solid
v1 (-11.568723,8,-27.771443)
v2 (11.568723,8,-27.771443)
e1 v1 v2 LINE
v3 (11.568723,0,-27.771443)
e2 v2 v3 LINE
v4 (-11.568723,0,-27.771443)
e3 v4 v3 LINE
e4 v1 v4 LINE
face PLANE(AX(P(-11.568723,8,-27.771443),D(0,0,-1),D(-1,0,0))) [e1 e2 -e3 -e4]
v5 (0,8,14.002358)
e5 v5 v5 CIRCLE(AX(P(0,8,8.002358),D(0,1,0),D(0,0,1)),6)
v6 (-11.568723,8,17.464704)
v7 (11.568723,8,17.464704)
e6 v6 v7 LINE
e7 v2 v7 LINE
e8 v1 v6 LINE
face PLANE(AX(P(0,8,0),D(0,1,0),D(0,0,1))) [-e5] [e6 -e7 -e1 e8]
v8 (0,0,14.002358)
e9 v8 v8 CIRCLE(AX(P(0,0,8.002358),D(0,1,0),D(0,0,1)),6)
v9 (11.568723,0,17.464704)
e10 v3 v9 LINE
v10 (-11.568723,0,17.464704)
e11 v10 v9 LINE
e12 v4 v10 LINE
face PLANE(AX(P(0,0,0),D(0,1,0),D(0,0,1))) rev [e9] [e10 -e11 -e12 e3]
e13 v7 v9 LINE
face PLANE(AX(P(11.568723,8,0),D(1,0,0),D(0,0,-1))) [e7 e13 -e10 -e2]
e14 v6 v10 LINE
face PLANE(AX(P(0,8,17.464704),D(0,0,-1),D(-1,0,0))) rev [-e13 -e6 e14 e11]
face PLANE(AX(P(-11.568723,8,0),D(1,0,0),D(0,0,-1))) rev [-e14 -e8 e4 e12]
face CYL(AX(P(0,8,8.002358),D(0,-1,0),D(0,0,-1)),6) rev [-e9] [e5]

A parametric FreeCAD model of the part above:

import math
import FreeCAD as App
import Part
import Sketcher
Q = App.Units.Quantity

doc = App.newDocument("Part")
body = doc.addObject("PartDesign::Body", "Body")

sketch1 = body.newObject("Sketcher::SketchObject", "Sketch")
sketch1.AttachmentSupport = (doc.getObject("XZ_Plane"), [""])
sketch1.MapMode = "FlatFace"
sketch1.addGeometry([
    Part.LineSegment(App.Vector(11.568723, 17.464704, 0), App.Vector(11.568723, -17.464704, 0)),
    Part.LineSegment(App.Vector(11.568723, -17.464704, 0), App.Vector(-11.568723, -17.464704, 0)),
    Part.LineSegment(App.Vector(-11.568723, -17.464704, 0), App.Vector(-11.568723, 17.464704, 0)),
    Part.LineSegment(App.Vector(-11.568723, 17.464704, 0), App.Vector(11.568723, 17.464704, 0)),
    Part.ArcOfCircle(Part.Circle(App.Vector(0, 8.002358, 0), App.Vector(0, 0, 1), 6), math.radians(-90), math.radians(0)),
    Part.ArcOfCircle(Part.Circle(App.Vector(0, 8.002358, 0), App.Vector(0, 0, 1), 6), math.radians(0), math.radians(90)),
    Part.ArcOfCircle(Part.Circle(App.Vector(0, 8.002358, 0), App.Vector(0, 0, 1), 6), math.radians(90), math.radians(270)),
], False)
sketch1.addConstraint([
    Sketcher.Constraint("Coincident", 0, 2, 1, 1),
    Sketcher.Constraint("Coincident", 1, 2, 2, 1),
    Sketcher.Constraint("Coincident", 2, 2, 3, 1),
    Sketcher.Constraint("Coincident", 3, 2, 0, 1),
    Sketcher.Constraint("Tangent", 4, 2, 5, 1),
    Sketcher.Constraint("Tangent", 5, 2, 6, 1),
    Sketcher.Constraint("Tangent", 6, 2, 4, 1),
    Sketcher.Constraint("Vertical", 0),
    Sketcher.Constraint("Horizontal", 1),
    Sketcher.Constraint("Vertical", 2),
    Sketcher.Constraint("Horizontal", 3),
    Sketcher.Constraint("Symmetric", 0, 2, 2, 2, -1, 1),
    Sketcher.Constraint("PointOnObject", 4, 3, -2),
    Sketcher.Constraint("PointOnObject", 5, 2, -2),
    Sketcher.Constraint("PointOnObject", 6, 2, -2),
    Sketcher.Constraint("Horizontal", 6, 3, 4, 2),
    Sketcher.Constraint("Radius", 4, Q("6 mm")),
    Sketcher.Constraint("DistanceY", 0, 2, 0, 1, Q("34.929409 mm")),
    Sketcher.Constraint("DistanceX", 1, 2, 1, 1, Q("23.137446 mm")),
    Sketcher.Constraint("DistanceY", -1, 1, 4, 3, Q("8.002358 mm")),
])
pad1 = body.newObject("PartDesign::Pad", "Pad")
pad1.Profile = sketch1
pad1.Length = 8
pad1.Reversed = True

sketch2 = body.newObject("Sketcher::SketchObject", "Sketch001")
sketch2.AttachmentSupport = (doc.getObject("XZ_Plane"), [""])
sketch2.MapMode = "FlatFace"
sketch2.addGeometry([
    Part.LineSegment(App.Vector(-11.568723, -17.464704, 0), App.Vector(-11.568723, -27.771443, 0)),
    Part.LineSegment(App.Vector(-11.568723, -27.771443, 0), App.Vector(11.568723, -27.771443, 0)),
    Part.LineSegment(App.Vector(11.568723, -27.771443, 0), App.Vector(11.568723, -17.464704, 0)),
    Part.LineSegment(App.Vector(11.568723, -17.464704, 0), App.Vector(-11.568723, -17.464704, 0)),
], False)
sketch2.addConstraint([
    Sketcher.Constraint("Coincident", 0, 2, 1, 1),
    Sketcher.Constraint("Coincident", 1, 2, 2, 1),
    Sketcher.Constraint("Coincident", 2, 2, 3, 1),
    Sketcher.Constraint("Coincident", 3, 2, 0, 1),
    Sketcher.Constraint("Vertical", 0),
    Sketcher.Constraint("Horizontal", 1),
    Sketcher.Constraint("Vertical", 2),
    Sketcher.Constraint("Horizontal", 3),
    Sketcher.Constraint("DistanceY", 0, 2, 0, 1, Q("10.306739 mm")),
    Sketcher.Constraint("DistanceX", 1, 1, 1, 2, Q("23.137446 mm")),
    Sketcher.Constraint("DistanceX", 0, 2, -1, 1, Q("11.568723 mm")),
    Sketcher.Constraint("DistanceY", 0, 2, -1, 1, Q("27.771443 mm")),
])
pad2 = body.newObject("PartDesign::Pad", "Pad001")
pad2.Profile = sketch2
pad2.Length = 8
pad2.Reversed = True

doc.recompute()
